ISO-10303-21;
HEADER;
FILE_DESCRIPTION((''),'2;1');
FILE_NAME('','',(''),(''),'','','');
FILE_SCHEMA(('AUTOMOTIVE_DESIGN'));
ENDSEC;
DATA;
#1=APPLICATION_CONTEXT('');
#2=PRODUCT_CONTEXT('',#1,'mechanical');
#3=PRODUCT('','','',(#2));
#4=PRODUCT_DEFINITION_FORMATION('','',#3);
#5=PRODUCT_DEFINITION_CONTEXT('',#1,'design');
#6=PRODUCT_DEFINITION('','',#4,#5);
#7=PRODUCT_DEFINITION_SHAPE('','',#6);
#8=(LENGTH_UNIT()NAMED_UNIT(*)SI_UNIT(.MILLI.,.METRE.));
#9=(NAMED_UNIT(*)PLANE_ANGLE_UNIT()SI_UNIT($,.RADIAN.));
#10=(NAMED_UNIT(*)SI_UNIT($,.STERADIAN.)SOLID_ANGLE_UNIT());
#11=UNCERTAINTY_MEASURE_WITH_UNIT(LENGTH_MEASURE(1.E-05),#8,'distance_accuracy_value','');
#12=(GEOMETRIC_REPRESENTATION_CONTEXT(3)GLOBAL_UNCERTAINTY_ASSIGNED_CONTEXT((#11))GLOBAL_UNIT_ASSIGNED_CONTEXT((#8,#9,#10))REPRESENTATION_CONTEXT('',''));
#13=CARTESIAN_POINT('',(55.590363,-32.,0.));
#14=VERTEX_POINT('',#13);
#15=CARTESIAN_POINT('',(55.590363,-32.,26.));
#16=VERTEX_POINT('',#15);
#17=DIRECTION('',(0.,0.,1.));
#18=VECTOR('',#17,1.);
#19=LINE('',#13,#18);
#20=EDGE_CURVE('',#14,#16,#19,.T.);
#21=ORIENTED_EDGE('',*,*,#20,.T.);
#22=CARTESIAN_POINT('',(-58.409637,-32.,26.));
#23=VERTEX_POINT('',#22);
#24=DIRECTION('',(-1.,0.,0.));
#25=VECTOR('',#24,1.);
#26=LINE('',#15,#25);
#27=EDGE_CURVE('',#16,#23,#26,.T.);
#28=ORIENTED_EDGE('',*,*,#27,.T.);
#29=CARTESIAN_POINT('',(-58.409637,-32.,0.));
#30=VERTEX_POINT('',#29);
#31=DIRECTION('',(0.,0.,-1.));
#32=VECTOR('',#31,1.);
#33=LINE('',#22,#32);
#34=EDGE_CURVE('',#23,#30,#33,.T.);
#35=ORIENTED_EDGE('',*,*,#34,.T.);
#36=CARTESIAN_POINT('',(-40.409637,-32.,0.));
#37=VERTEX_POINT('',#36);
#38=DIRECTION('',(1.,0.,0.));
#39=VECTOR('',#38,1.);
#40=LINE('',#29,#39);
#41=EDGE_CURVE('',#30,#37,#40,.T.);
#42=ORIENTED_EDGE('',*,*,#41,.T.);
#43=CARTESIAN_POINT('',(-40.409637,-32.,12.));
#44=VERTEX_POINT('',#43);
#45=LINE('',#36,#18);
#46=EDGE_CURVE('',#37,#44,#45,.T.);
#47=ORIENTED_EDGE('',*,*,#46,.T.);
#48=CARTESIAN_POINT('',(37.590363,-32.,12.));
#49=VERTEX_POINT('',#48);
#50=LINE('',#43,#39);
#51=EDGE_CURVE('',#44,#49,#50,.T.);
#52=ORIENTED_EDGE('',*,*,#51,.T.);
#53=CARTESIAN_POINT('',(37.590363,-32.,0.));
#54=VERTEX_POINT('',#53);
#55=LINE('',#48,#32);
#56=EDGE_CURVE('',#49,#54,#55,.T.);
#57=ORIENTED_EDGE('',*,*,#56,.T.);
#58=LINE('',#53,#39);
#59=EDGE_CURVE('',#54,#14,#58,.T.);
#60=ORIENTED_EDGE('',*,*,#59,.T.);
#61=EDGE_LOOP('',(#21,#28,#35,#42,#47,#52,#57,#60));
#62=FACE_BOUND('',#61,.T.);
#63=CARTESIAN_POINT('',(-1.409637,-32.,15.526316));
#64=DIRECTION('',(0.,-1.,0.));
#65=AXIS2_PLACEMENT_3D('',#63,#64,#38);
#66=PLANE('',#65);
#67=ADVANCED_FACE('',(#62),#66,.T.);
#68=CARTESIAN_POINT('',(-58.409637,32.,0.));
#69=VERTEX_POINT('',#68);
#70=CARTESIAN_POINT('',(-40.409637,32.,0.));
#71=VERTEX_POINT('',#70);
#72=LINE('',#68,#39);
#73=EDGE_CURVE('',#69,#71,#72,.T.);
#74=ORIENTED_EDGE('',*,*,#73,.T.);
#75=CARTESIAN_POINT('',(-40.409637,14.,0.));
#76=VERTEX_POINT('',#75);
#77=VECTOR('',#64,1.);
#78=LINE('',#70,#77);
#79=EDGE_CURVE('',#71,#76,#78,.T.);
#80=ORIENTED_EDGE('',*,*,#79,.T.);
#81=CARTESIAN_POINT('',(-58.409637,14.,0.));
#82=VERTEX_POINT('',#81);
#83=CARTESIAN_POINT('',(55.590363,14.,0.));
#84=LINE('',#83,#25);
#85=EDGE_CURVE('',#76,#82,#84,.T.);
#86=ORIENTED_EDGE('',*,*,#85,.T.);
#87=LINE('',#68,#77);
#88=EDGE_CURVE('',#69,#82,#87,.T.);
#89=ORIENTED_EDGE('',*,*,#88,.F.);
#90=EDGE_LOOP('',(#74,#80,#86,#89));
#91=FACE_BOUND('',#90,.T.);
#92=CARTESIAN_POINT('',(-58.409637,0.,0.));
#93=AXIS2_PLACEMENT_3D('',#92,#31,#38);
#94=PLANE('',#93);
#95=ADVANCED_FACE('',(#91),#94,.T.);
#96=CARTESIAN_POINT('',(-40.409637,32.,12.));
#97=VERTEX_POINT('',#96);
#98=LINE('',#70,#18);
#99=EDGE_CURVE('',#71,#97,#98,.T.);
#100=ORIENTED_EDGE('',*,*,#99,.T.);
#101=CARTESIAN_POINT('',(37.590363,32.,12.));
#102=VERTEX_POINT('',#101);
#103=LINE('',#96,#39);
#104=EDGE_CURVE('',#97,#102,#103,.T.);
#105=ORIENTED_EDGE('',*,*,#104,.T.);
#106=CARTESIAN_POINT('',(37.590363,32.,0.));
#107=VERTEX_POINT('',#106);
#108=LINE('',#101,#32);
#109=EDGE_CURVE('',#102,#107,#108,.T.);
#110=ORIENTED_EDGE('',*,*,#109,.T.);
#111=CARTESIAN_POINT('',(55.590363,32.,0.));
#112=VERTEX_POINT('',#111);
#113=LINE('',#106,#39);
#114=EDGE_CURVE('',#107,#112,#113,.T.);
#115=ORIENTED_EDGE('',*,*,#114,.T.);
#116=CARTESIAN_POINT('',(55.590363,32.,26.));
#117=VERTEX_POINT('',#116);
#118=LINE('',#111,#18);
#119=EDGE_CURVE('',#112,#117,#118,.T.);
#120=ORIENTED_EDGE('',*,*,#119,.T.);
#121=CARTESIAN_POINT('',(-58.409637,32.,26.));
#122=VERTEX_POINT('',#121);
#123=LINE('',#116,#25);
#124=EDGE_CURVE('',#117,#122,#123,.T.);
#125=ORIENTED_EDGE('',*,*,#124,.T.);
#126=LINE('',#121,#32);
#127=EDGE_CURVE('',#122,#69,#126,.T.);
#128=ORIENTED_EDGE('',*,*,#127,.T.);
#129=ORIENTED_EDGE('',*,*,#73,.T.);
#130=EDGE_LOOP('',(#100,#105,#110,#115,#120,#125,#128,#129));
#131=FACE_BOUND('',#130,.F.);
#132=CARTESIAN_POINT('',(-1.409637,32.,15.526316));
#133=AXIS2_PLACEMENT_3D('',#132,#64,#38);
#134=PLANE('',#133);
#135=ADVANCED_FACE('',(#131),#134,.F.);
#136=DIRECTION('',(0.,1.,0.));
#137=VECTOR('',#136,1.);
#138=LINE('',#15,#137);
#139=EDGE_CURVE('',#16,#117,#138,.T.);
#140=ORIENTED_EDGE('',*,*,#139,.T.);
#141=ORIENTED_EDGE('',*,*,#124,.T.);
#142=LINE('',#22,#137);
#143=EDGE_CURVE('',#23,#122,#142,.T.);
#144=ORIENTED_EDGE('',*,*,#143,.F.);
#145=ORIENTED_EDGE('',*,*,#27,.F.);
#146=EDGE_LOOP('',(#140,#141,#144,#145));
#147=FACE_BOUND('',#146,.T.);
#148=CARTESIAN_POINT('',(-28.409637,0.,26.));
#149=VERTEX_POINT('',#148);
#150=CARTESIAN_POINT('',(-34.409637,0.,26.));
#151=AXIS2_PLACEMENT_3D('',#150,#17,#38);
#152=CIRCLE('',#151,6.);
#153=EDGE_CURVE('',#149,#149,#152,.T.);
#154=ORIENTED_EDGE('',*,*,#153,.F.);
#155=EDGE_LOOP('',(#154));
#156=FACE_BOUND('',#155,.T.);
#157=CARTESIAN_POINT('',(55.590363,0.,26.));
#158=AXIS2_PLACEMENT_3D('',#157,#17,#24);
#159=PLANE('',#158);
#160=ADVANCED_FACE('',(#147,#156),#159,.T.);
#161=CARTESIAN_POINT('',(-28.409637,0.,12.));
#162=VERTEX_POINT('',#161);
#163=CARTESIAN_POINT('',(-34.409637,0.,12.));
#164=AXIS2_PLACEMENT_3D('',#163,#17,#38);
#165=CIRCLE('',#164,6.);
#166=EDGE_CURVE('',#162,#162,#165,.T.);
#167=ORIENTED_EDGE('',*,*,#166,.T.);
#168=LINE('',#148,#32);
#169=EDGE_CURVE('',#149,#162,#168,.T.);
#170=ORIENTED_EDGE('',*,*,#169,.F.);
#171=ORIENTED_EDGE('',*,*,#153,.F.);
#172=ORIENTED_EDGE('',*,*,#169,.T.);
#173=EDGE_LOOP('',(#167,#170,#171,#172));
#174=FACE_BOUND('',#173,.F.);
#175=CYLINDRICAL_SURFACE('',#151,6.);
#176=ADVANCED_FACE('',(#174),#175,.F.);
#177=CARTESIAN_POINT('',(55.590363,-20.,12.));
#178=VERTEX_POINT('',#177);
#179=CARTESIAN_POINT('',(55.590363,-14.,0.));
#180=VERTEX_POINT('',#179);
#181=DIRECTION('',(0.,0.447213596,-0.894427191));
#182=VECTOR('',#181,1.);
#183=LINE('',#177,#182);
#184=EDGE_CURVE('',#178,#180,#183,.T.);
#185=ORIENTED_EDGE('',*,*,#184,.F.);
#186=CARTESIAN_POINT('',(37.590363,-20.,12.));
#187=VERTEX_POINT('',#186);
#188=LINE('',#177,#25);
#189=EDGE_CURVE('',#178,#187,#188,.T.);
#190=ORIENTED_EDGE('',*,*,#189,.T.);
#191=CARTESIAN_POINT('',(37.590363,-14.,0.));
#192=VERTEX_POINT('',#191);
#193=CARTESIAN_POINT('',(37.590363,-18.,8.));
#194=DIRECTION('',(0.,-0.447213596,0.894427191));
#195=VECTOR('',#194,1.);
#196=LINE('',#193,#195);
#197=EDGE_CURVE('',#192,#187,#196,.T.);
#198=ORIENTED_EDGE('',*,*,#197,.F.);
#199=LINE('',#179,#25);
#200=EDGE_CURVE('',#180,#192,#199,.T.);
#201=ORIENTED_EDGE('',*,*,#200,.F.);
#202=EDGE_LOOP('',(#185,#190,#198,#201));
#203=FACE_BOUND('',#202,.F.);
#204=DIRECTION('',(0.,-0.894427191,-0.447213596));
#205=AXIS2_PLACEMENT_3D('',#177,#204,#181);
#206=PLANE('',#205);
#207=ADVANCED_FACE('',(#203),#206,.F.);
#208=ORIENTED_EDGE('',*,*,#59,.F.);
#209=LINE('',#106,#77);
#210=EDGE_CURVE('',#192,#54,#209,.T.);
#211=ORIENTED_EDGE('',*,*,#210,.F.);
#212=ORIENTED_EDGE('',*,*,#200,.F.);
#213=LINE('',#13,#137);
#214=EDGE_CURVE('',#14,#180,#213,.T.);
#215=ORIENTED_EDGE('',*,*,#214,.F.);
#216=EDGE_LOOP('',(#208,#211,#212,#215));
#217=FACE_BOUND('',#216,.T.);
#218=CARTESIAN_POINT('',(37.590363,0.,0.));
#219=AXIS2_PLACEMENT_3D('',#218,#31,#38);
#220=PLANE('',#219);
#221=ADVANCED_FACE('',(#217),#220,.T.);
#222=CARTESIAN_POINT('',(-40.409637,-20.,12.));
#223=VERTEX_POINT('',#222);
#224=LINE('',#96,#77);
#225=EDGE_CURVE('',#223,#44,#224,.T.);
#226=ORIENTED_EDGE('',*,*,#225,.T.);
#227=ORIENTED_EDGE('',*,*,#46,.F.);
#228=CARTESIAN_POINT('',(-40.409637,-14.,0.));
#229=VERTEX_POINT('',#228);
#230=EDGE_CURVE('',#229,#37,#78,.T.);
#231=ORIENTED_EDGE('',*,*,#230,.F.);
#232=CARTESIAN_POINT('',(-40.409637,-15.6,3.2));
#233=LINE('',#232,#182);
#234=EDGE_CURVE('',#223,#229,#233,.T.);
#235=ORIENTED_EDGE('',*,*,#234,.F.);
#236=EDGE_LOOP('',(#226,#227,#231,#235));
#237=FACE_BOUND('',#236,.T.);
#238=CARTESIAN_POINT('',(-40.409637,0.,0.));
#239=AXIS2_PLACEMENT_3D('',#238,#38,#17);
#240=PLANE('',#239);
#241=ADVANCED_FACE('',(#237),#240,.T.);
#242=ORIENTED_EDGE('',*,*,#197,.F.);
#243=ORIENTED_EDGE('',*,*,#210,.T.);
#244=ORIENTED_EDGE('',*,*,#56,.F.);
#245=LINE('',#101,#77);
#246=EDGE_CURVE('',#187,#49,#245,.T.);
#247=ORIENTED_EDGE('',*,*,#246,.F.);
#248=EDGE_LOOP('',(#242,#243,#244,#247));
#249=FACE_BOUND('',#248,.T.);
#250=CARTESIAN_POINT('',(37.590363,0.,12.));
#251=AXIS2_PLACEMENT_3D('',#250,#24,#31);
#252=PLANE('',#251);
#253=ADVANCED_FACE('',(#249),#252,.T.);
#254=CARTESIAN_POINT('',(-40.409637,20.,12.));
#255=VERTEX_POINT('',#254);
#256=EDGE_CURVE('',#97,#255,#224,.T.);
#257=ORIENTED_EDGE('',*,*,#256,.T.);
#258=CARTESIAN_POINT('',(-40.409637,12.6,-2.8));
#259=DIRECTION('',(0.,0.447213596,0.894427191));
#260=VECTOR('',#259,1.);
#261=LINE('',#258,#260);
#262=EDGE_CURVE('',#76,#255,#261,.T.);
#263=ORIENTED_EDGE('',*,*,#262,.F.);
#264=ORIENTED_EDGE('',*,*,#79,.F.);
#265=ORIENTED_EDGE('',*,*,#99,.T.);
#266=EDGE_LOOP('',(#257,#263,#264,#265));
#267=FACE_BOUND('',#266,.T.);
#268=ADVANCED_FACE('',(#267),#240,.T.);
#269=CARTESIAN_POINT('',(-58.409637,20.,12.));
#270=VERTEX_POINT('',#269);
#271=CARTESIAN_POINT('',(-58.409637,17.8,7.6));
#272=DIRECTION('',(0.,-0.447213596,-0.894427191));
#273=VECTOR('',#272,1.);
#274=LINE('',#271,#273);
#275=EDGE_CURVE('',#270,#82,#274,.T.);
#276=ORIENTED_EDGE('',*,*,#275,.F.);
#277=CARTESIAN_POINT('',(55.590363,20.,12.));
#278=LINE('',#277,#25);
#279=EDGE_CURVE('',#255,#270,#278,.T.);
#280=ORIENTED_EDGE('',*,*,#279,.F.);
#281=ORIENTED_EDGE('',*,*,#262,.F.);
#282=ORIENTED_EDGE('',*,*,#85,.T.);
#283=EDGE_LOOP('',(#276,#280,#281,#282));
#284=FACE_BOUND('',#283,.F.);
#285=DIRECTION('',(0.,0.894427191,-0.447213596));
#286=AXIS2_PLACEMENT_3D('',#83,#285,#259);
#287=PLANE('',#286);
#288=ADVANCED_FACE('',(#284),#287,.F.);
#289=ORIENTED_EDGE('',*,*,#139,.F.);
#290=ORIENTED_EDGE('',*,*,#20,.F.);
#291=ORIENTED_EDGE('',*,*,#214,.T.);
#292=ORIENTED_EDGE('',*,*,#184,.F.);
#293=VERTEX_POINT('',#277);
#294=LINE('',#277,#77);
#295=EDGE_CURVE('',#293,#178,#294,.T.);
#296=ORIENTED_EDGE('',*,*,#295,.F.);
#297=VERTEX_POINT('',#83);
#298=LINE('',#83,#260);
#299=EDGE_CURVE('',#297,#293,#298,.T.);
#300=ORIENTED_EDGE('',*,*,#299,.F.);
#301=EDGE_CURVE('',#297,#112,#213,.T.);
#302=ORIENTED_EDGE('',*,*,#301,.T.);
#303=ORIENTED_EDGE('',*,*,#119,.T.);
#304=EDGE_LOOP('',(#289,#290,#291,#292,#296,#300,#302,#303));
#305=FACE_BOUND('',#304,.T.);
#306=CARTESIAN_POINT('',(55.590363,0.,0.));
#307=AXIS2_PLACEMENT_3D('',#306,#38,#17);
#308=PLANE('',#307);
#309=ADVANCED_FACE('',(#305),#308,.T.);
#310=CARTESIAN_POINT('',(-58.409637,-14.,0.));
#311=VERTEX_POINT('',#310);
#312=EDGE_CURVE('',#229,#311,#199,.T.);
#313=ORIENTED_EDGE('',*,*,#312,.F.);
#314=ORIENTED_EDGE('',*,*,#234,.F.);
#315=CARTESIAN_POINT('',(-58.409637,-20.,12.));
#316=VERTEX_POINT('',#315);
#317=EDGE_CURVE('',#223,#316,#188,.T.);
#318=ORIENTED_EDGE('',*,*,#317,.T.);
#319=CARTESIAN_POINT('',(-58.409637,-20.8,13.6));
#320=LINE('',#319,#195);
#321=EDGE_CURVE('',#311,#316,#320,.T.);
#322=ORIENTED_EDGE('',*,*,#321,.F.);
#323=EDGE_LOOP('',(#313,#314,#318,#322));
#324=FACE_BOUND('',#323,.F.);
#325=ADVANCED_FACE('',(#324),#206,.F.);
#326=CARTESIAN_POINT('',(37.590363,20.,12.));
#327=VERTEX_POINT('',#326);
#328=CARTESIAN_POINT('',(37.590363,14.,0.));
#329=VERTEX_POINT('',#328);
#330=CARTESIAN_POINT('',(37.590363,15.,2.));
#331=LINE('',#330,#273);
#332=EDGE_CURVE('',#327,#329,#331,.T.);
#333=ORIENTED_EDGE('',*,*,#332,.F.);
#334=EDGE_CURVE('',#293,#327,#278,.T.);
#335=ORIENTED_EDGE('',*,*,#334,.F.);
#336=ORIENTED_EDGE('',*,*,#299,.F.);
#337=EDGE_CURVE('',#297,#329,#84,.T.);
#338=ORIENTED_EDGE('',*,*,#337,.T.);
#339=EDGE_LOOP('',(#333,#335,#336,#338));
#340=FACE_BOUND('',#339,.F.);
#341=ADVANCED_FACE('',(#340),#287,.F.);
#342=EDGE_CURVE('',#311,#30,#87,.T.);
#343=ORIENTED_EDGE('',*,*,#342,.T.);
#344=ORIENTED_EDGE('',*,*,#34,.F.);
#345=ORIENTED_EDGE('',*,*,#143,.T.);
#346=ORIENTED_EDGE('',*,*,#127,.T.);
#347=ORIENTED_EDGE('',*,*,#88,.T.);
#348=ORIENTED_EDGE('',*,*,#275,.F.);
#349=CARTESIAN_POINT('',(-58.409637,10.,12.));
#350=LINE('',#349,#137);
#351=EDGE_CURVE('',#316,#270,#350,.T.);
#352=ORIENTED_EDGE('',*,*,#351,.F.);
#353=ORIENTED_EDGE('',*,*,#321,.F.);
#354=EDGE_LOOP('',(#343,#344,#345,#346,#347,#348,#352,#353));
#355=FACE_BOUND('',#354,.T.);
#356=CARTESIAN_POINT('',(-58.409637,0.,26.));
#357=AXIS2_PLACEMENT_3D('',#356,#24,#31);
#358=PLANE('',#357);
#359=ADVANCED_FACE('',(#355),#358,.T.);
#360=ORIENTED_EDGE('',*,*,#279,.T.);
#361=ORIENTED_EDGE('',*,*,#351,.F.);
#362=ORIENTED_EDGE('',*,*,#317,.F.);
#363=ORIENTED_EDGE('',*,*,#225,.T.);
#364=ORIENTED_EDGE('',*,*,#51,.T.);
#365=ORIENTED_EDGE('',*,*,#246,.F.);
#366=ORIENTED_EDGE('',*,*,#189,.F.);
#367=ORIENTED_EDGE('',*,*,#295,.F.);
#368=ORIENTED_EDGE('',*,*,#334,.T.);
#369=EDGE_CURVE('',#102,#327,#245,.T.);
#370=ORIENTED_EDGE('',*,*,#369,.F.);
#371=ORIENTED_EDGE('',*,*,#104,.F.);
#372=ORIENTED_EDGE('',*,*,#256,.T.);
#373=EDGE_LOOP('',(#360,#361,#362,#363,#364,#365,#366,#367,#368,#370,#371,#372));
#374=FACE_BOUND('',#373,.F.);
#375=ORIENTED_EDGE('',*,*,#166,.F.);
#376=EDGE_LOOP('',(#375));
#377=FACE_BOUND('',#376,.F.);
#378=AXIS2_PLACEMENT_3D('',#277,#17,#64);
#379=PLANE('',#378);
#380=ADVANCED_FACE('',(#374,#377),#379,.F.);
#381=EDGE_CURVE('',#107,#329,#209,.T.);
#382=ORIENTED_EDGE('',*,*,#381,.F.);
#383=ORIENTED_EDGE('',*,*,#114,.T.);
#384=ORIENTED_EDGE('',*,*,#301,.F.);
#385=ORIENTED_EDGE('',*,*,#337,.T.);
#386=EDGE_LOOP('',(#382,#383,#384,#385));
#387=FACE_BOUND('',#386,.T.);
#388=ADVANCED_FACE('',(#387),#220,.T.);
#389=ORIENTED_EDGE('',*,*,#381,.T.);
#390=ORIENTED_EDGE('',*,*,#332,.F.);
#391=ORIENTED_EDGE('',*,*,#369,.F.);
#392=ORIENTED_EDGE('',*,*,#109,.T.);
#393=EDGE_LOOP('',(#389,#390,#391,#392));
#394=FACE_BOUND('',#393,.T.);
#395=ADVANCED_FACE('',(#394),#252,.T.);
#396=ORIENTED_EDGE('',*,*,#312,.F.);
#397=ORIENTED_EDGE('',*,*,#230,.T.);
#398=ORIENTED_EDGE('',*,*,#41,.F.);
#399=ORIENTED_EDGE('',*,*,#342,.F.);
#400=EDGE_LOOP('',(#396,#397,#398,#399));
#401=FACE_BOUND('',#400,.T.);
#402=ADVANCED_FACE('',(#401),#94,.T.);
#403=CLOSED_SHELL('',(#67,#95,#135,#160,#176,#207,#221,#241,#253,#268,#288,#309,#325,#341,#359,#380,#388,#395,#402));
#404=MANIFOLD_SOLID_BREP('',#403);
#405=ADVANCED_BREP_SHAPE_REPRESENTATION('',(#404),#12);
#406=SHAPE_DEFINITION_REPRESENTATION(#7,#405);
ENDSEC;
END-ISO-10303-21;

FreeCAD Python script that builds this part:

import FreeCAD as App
import Part
import Sketcher
from FreeCAD import Vector

doc = App.newDocument("Part")
body = doc.addObject("PartDesign::Body", "Body")

# Sketch on XZ plane
sketch1 = body.newObject("Sketcher::SketchObject", "Sketch")
sketch1.AttachmentSupport = (doc.getObject("XZ_Plane"), [""])
sketch1.MapMode = "FlatFace"
sketch1.addGeometry([
    Part.LineSegment(Vector(-58, 26, 0), Vector(-58, 0, 0)),  # 0
    Part.LineSegment(Vector(-58, 0, 0), Vector(-40, 0, 0)),  # 1
    Part.LineSegment(Vector(-40, 0, 0), Vector(-40, 12, 0)),  # 2
    Part.LineSegment(Vector(-40, 12, 0), Vector(38, 12, 0)),  # 3
    Part.LineSegment(Vector(38, 12, 0), Vector(38, 0, 0)),  # 4
    Part.LineSegment(Vector(38, 0, 0), Vector(56, 0, 0)),  # 5
    Part.LineSegment(Vector(56, 0, 0), Vector(56, 26, 0)),  # 6
    Part.LineSegment(Vector(56, 26, 0), Vector(-58, 26, 0)),  # 7
], False)
sketch1.addConstraint([
    Sketcher.Constraint("Coincident", 0, 2, 1, 1),
    Sketcher.Constraint("Coincident", 1, 2, 2, 1),
    Sketcher.Constraint("Coincident", 2, 2, 3, 1),
    Sketcher.Constraint("Coincident", 3, 2, 4, 1),
    Sketcher.Constraint("Coincident", 4, 2, 5, 1),
    Sketcher.Constraint("Coincident", 5, 2, 6, 1),
    Sketcher.Constraint("Coincident", 6, 2, 7, 1),
    Sketcher.Constraint("Coincident", 7, 2, 0, 1),
    Sketcher.Constraint("Vertical", 0),
    Sketcher.Constraint("Horizontal", 1),
    Sketcher.Constraint("Vertical", 2),
    Sketcher.Constraint("Horizontal", 3),
    Sketcher.Constraint("Vertical", 4),
    Sketcher.Constraint("Horizontal", 5),
    Sketcher.Constraint("Vertical", 6),
    Sketcher.Constraint("Horizontal", 7),
    Sketcher.Constraint("PointOnObject", 0, 2, -1),
    Sketcher.Constraint("PointOnObject", 4, 2, -1),
    Sketcher.Constraint("Equal", 1, 5),
    Sketcher.Constraint("DistanceX", 1, 1, 1, 2, 18.0),
    Sketcher.Constraint("DistanceX", 3, 1, 3, 2, 78.0),
    Sketcher.Constraint("DistanceY", 0, 2, 0, 1, 26.0),
    Sketcher.Constraint("DistanceY", 2, 1, 2, 2, 12.0),
    Sketcher.Constraint("DistanceX", 0, 2, -1, 1, 58.409637),
])
pad1 = body.newObject("PartDesign::Pad", "Pad")
pad1.Profile = sketch1
pad1.Length = 64
pad1.Midplane = True

# Sketch on XY plane
sketch2 = body.newObject("Sketcher::SketchObject", "Sketch001")
sketch2.AttachmentSupport = (doc.getObject("XY_Plane"), [""])
sketch2.MapMode = "FlatFace"
sketch2.AttachmentOffset = App.Placement(Vector(0, 0, 26), App.Rotation())
sketch2.addGeometry(Part.Circle(Vector(-34, 0, 0), Vector(0, 0, 1), 6), False)
sketch2.addConstraint([
    Sketcher.Constraint("PointOnObject", 0, 3, -1),
    Sketcher.Constraint("Diameter", 0, 12.0),
    Sketcher.Constraint("DistanceX", 0, 3, -1, 1, 34.409637),
])
pocket1 = body.newObject("PartDesign::Pocket", "Pocket")
pocket1.Profile = sketch2
pocket1.Length = 25

# Sketch on YZ plane
sketch3 = body.newObject("Sketcher::SketchObject", "Sketch002")
sketch3.AttachmentSupport = (doc.getObject("YZ_Plane"), [""])
sketch3.MapMode = "FlatFace"
sketch3.AttachmentOffset = App.Placement(Vector(0, 0, 55.590363), App.Rotation())
sketch3.addGeometry([
    Part.LineSegment(Vector(-14, 0, 0), Vector(14, 0, 0)),
    Part.LineSegment(Vector(14, 0, 0), Vector(20, 12, 0)),
    Part.LineSegment(Vector(20, 12, 0), Vector(-20, 12, 0)),
    Part.LineSegment(Vector(-20, 12, 0), Vector(-14, 0, 0)),
], False)
sketch3.addConstraint([
    Sketcher.Constraint("Coincident", 0, 2, 1, 1),
    Sketcher.Constraint("Coincident", 1, 2, 2, 1),
    Sketcher.Constraint("Coincident", 2, 2, 3, 1),
    Sketcher.Constraint("Coincident", 3, 2, 0, 1),
    Sketcher.Constraint("Horizontal", 0),
    Sketcher.Constraint("Horizontal", 2),
    Sketcher.Constraint("Symmetric", 0, 2, 3, 2, -1, 1),
    Sketcher.Constraint("Equal", 1, 3),
    Sketcher.Constraint("DistanceX", 0, 1, 0, 2, 28.0),
    Sketcher.Constraint("DistanceX", 2, 2, 2, 1, 40.0),
    Sketcher.Constraint("DistanceY", -1, 1, 1, 2, 12.0),
])
pocket2 = body.newObject("PartDesign::Pocket", "Pocket001")
pocket2.Profile = sketch3
pocket2.Length = 1000

doc.recompute()
